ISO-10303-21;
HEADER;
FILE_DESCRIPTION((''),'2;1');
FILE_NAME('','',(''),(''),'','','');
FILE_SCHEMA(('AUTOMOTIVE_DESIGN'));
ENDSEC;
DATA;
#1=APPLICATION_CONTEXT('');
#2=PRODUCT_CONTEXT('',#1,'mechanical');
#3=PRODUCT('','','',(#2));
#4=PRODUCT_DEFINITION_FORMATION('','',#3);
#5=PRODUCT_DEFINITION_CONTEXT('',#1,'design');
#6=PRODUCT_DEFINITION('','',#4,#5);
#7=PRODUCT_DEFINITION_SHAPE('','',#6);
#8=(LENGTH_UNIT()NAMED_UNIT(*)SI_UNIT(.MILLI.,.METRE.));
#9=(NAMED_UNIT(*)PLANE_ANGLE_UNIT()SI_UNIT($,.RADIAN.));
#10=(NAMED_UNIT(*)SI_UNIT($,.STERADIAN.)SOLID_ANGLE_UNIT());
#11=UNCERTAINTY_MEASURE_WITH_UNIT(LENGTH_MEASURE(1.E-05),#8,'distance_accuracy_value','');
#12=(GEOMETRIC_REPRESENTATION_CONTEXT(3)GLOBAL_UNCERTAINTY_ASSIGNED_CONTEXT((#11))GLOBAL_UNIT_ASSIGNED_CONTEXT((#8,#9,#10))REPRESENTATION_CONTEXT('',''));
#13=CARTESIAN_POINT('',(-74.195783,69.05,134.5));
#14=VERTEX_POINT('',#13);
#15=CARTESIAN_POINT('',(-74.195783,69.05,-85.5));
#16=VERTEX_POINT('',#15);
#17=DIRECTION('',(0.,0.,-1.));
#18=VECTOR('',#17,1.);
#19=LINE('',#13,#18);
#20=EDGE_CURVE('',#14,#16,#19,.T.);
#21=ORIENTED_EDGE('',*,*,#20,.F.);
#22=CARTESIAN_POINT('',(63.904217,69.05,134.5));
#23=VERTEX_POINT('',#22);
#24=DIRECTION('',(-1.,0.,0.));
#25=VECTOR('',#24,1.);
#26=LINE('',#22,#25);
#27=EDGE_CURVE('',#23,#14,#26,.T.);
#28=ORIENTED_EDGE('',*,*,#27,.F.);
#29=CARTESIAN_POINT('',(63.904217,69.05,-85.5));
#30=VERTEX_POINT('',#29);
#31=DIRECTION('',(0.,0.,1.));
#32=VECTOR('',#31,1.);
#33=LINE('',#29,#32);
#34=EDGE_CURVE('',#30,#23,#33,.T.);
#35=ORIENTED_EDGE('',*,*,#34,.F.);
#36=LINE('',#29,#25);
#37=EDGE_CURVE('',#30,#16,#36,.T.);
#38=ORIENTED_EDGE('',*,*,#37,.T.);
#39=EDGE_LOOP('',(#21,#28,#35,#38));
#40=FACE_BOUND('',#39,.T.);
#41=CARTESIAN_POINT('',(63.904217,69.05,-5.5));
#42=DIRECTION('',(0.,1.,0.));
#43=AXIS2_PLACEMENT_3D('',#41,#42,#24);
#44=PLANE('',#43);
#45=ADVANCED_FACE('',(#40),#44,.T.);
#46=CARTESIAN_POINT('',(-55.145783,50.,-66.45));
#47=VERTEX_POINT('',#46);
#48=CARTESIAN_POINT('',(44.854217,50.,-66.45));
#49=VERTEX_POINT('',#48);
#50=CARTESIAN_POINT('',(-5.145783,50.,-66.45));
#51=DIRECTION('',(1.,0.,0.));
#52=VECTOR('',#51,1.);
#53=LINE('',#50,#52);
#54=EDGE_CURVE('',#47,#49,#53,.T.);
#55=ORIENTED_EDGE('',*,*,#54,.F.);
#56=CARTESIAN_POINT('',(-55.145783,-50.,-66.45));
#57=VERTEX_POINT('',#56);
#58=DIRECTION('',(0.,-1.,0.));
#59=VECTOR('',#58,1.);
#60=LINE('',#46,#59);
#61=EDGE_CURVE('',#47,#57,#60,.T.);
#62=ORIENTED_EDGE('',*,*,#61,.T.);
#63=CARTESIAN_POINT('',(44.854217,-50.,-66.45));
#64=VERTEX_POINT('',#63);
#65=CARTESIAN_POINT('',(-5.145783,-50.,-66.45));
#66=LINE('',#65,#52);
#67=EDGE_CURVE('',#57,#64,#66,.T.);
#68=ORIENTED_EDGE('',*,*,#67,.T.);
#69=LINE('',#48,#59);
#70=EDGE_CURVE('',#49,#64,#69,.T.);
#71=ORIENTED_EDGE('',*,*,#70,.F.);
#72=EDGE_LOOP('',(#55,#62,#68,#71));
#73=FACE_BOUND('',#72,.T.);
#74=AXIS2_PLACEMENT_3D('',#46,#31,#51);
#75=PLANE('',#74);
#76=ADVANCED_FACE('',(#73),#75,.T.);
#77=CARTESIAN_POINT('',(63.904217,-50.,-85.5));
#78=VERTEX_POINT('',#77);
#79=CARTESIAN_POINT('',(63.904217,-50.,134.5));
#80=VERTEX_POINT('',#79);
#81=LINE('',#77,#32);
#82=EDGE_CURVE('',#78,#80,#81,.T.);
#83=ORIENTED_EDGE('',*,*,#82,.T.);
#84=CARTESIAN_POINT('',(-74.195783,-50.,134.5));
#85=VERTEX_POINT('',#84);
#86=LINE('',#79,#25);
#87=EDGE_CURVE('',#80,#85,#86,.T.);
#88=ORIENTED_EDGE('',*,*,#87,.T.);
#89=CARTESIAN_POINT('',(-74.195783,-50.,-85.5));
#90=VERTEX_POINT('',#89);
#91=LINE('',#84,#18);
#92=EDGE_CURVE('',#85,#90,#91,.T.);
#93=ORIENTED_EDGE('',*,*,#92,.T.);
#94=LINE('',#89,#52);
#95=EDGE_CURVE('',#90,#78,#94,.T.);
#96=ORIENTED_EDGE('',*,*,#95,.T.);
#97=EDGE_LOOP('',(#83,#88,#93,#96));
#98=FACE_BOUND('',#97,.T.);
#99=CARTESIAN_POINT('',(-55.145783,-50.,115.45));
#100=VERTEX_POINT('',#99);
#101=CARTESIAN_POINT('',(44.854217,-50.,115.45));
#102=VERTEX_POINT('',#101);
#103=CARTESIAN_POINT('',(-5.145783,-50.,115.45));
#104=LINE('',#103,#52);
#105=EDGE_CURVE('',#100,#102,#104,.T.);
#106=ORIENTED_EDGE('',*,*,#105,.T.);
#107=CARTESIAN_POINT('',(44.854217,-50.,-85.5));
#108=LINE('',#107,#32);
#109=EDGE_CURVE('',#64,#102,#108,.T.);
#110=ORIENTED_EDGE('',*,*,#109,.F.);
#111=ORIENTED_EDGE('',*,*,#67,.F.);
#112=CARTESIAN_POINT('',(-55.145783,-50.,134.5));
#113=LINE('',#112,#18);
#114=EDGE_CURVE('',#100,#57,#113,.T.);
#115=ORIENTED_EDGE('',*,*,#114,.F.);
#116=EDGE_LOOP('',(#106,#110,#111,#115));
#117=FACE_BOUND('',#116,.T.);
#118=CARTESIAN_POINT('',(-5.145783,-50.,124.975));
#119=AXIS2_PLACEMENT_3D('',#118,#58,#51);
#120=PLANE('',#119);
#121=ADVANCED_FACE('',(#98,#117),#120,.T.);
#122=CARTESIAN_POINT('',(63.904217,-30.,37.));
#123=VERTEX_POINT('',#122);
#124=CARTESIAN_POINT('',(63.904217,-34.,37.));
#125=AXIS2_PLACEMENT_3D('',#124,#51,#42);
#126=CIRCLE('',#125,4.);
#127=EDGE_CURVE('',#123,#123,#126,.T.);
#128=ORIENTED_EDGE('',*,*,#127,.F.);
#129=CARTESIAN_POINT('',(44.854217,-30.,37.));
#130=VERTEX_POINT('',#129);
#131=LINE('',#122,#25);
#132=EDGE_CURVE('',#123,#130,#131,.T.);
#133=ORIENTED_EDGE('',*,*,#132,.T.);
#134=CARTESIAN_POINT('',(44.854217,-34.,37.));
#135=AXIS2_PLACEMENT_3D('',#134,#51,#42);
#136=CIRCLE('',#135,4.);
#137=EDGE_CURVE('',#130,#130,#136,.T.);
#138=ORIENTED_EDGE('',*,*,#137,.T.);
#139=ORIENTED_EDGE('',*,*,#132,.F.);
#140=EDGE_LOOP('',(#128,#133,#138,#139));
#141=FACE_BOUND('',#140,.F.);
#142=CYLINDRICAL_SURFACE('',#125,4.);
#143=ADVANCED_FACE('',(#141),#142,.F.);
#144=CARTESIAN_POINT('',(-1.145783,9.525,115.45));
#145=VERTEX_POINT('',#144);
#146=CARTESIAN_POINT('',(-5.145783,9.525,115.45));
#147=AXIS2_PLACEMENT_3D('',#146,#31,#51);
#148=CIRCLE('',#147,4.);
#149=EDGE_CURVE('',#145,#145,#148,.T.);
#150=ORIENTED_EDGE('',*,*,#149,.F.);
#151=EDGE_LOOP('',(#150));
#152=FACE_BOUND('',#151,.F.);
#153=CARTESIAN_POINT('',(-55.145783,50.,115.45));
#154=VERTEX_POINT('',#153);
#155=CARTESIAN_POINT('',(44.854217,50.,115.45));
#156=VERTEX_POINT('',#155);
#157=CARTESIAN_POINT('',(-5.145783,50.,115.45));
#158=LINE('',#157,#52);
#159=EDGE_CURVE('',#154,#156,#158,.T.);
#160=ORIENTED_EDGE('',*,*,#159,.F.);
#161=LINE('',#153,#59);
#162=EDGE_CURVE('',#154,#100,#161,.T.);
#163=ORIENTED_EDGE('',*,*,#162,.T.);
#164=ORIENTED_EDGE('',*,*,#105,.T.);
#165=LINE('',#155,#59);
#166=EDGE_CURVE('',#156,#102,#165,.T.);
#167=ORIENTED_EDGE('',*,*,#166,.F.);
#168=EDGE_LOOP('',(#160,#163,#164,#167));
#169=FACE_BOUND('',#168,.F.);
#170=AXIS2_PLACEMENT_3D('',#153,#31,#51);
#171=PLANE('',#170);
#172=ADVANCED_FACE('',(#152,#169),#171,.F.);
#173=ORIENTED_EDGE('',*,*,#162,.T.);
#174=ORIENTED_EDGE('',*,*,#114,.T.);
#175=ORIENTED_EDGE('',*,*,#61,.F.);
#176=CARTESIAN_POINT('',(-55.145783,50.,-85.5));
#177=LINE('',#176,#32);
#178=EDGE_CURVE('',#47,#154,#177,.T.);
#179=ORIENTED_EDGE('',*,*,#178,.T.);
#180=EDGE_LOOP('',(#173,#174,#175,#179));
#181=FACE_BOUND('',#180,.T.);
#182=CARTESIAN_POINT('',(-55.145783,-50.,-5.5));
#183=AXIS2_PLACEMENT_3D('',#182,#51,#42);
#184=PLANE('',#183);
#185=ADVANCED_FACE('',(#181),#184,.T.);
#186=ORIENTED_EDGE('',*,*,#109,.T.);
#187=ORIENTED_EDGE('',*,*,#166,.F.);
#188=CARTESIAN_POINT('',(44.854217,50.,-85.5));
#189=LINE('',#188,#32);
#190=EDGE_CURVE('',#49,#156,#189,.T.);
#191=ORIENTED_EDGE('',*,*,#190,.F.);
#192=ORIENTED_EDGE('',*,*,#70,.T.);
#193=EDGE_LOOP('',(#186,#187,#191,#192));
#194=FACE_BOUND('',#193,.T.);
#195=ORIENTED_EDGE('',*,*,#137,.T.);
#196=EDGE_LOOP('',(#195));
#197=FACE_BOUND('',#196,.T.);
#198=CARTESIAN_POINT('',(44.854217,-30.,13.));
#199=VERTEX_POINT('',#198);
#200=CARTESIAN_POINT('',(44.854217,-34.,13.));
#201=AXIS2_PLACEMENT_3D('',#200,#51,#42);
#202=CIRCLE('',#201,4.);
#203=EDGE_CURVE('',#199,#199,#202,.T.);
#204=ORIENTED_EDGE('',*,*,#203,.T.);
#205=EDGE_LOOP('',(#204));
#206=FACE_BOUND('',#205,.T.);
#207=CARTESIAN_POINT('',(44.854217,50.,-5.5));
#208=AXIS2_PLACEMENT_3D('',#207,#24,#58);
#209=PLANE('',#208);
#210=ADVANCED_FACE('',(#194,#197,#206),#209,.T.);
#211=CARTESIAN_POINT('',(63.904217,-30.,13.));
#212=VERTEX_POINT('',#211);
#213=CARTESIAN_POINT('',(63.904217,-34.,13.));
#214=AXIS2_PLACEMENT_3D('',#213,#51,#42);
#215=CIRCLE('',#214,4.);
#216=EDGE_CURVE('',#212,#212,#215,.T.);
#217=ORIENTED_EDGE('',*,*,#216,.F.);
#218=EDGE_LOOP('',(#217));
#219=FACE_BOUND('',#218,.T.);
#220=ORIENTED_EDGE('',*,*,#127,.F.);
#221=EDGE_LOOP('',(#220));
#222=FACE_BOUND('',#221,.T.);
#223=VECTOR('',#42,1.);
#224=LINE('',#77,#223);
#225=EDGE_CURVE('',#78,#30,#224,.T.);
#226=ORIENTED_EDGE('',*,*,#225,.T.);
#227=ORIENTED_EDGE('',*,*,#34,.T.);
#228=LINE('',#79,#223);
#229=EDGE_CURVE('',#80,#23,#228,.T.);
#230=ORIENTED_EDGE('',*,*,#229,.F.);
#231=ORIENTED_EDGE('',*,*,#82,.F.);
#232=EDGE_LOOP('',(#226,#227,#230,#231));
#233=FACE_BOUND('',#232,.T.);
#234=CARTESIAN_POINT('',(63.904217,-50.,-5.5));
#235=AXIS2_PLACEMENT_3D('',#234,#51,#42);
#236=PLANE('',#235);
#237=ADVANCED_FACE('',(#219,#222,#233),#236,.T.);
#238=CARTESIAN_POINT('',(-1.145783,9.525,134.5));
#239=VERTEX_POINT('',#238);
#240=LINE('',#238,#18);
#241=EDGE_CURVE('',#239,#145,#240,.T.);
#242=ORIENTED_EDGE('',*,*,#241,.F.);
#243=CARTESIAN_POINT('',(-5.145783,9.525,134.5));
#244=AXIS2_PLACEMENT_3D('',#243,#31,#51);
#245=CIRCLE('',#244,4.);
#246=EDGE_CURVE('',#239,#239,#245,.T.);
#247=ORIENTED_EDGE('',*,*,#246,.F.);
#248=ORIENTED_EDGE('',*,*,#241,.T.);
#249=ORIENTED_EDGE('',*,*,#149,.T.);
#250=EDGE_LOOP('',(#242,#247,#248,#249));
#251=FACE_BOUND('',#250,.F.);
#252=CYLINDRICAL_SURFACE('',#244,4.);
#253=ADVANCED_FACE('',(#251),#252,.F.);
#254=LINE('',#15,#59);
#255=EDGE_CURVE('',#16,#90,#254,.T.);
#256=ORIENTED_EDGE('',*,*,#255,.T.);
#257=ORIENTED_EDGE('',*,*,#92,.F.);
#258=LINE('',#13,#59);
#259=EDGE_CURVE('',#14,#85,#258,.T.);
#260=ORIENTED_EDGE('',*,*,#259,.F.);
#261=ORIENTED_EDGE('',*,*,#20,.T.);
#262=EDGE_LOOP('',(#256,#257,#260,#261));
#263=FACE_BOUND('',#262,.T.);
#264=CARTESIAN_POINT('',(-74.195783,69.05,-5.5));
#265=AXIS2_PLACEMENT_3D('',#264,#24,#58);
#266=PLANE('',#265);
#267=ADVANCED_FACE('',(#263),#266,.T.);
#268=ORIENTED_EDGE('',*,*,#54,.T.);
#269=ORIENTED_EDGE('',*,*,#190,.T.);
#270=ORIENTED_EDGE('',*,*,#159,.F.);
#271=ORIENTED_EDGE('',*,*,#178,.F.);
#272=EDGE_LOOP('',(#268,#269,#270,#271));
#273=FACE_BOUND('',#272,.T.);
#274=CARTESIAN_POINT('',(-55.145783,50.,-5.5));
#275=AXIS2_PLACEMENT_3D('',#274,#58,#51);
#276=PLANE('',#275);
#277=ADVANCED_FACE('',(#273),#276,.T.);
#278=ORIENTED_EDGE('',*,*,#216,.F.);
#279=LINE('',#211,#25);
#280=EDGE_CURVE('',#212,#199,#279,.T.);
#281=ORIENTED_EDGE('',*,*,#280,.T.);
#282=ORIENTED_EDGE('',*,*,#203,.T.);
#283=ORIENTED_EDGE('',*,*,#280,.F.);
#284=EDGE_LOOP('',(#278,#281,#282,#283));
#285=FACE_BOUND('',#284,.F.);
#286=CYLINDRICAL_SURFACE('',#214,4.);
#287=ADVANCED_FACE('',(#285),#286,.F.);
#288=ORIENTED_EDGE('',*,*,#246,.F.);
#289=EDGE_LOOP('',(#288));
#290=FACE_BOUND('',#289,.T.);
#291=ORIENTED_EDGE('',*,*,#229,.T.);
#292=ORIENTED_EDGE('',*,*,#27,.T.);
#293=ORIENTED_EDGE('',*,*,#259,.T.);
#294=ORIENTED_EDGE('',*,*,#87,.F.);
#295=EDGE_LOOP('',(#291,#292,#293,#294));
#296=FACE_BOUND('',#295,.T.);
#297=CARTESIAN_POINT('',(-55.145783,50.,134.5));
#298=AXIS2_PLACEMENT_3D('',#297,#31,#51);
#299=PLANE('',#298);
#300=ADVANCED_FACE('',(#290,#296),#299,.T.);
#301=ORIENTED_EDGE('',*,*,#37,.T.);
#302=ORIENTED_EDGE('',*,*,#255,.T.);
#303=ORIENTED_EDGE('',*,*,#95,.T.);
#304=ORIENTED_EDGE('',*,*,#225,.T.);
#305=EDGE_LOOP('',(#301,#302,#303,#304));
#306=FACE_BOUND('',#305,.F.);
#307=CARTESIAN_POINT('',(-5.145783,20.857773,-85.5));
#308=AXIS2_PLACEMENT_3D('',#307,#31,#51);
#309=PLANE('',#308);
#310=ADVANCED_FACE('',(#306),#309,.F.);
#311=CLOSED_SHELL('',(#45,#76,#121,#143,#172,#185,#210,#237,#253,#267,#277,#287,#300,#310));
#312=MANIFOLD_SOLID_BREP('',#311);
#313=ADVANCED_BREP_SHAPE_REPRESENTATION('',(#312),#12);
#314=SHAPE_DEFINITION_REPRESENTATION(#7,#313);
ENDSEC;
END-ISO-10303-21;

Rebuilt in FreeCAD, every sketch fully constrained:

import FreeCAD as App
import Part
import Sketcher
from FreeCAD import Vector


def add_polygon(sketch, points):
    """Adds a closed chain of lines whose ends are joined by coincident constraints."""
    first, n = sketch.GeometryCount, len(points)
    for a, b in zip(points, points[1:] + points[:1]):
        sketch.addGeometry(Part.LineSegment(App.Vector(*a, 0), App.Vector(*b, 0)), False)
    for i in range(n):
        sketch.addConstraint(Sketcher.Constraint("Coincident", first + i, 2, first + (i + 1) % n, 1))

doc = App.newDocument("Part")
body = doc.addObject("PartDesign::Body", "Body")

sketch1 = body.newObject("Sketcher::SketchObject", "Sketch")
sketch1.AttachmentSupport = (doc.getObject("XY_Plane"), [""])
sketch1.MapMode = "FlatFace"
sketch1.AttachmentOffset = App.Placement(Vector(0, 0, -5.5), App.Rotation())
add_polygon(sketch1, [(-55, -50), (-55, 50), (45, 50), (45, -50), (64, -50), (64, 69), (-74, 69), (-74, -50)])
sketch1.addConstraint(Sketcher.Constraint("Vertical", 0))
sketch1.addConstraint(Sketcher.Constraint("Horizontal", 1))
sketch1.addConstraint(Sketcher.Constraint("Vertical", 2))
sketch1.addConstraint(Sketcher.Constraint("Horizontal", 3))
sketch1.addConstraint(Sketcher.Constraint("Vertical", 4))
sketch1.addConstraint(Sketcher.Constraint("Horizontal", 5))
sketch1.addConstraint(Sketcher.Constraint("Vertical", 6))
sketch1.addConstraint(Sketcher.Constraint("Horizontal", 7))
sketch1.addConstraint(Sketcher.Constraint("Horizontal", 3, 2, 6, 2))
sketch1.addConstraint(Sketcher.Constraint("Equal", 3, 7))
sketch1.addConstraint(Sketcher.Constraint("Equal", 1, 0))
sketch1.addConstraint(Sketcher.Constraint("DistanceX", 1, 1, 1, 2, 100.0))
sketch1.addConstraint(Sketcher.Constraint("DistanceX", 5, 2, 5, 1, 138.1))
sketch1.addConstraint(Sketcher.Constraint("DistanceY", -1, 1, 0, 2, 50.0))
sketch1.addConstraint(Sketcher.Constraint("DistanceY", 4, 1, 4, 2, 119.05))
sketch1.addConstraint(Sketcher.Constraint("DistanceX", 0, 2, -1, 1, 55.145783))
pad1 = body.newObject("PartDesign::Pad", "Pad")
pad1.Profile = sketch1
pad1.Type = "TwoLengths"
pad1.Length = 140
pad1.Length2 = 80

sketch2 = body.newObject("Sketcher::SketchObject", "Sketch001")
sketch2.AttachmentSupport = (doc.getObject("XZ_Plane"), [""])
sketch2.MapMode = "FlatFace"
sketch2.AttachmentOffset = App.Placement(Vector(0, 0, -50), App.Rotation())
add_polygon(sketch2, [(-55, 134), (-55, 115), (45, 115), (45, 134)])
add_polygon(sketch2, [(-55, -66), (-55, -86), (45, -86), (45, -66)])
sketch2.addConstraint(Sketcher.Constraint("Vertical", 0))
sketch2.addConstraint(Sketcher.Constraint("Horizontal", 1))
sketch2.addConstraint(Sketcher.Constraint("Vertical", 2))
sketch2.addConstraint(Sketcher.Constraint("Horizontal", 3))
sketch2.addConstraint(Sketcher.Constraint("Vertical", 4))
sketch2.addConstraint(Sketcher.Constraint("Horizontal", 5))
sketch2.addConstraint(Sketcher.Constraint("Vertical", 6))
sketch2.addConstraint(Sketcher.Constraint("Horizontal", 7))
sketch2.addConstraint(Sketcher.Constraint("Vertical", 3, 2, 4, 2))
sketch2.addConstraint(Sketcher.Constraint("Vertical", 2, 2, 5, 2))
sketch2.addConstraint(Sketcher.Constraint("Equal", 2, 4))
sketch2.addConstraint(Sketcher.Constraint("DistanceX", 1, 1, 1, 2, 100.0))
sketch2.addConstraint(Sketcher.Constraint("DistanceY", 4, 2, 3, 2, 220.0))
sketch2.addConstraint(Sketcher.Constraint("DistanceY", 0, 2, 0, 1, 19.05))
sketch2.addConstraint(Sketcher.Constraint("DistanceY", -1, 1, 2, 2, 134.5))
sketch2.addConstraint(Sketcher.Constraint("DistanceX", 0, 2, -1, 1, 55.145783))
pad2 = body.newObject("PartDesign::Pad", "Pad001")
pad2.Profile = sketch2
pad2.Length = 100

sketch3 = body.newObject("Sketcher::SketchObject", "Sketch002")
sketch3.AttachmentSupport = (doc.getObject("XY_Plane"), [""])
sketch3.MapMode = "FlatFace"
sketch3.AttachmentOffset = App.Placement(Vector(0, 0, 134.5), App.Rotation())
sketch3.addGeometry(Part.Circle(Vector(-5.1, 9.5, 0), Vector(0, 0, 1), 4), False)
sketch3.addConstraint(Sketcher.Constraint("Diameter", 0, 8.0))
sketch3.addConstraint(Sketcher.Constraint("DistanceY", -1, 1, 0, 3, 9.525))
sketch3.addConstraint(Sketcher.Constraint("DistanceX", 0, 3, -1, 1, 5.145783))
pocket1 = body.newObject("PartDesign::Pocket", "Pocket")
pocket1.Profile = sketch3
pocket1.Length = 19.05

sketch4 = body.newObject("Sketcher::SketchObject", "Sketch003")
sketch4.AttachmentSupport = (doc.getObject("YZ_Plane"), [""])
sketch4.MapMode = "FlatFace"
sketch4.AttachmentOffset = App.Placement(Vector(0, 0, 63.904217), App.Rotation())
sketch4.addGeometry(Part.Circle(Vector(-34, 13, 0), Vector(0, 0, 1), 4), False)
sketch4.addGeometry(Part.Circle(Vector(-34, 37, 0), Vector(0, 0, 1), 4), False)
sketch4.addConstraint(Sketcher.Constraint("Equal", 0, 1))
sketch4.addConstraint(Sketcher.Constraint("Vertical", 0, 3, 1, 3))
sketch4.addConstraint(Sketcher.Constraint("Diameter", 0, 8.0))
sketch4.addConstraint(Sketcher.Constraint("DistanceX", 0, 3, -1, 1, 34.0))
sketch4.addConstraint(Sketcher.Constraint("DistanceY", -1, 1, 0, 3, 13.0))
sketch4.addConstraint(Sketcher.Constraint("DistanceY", -1, 1, 1, 3, 37.0))
pocket2 = body.newObject("PartDesign::Pocket", "Pocket001")
pocket2.Profile = sketch4
pocket2.Length = 20

doc.recompute()
